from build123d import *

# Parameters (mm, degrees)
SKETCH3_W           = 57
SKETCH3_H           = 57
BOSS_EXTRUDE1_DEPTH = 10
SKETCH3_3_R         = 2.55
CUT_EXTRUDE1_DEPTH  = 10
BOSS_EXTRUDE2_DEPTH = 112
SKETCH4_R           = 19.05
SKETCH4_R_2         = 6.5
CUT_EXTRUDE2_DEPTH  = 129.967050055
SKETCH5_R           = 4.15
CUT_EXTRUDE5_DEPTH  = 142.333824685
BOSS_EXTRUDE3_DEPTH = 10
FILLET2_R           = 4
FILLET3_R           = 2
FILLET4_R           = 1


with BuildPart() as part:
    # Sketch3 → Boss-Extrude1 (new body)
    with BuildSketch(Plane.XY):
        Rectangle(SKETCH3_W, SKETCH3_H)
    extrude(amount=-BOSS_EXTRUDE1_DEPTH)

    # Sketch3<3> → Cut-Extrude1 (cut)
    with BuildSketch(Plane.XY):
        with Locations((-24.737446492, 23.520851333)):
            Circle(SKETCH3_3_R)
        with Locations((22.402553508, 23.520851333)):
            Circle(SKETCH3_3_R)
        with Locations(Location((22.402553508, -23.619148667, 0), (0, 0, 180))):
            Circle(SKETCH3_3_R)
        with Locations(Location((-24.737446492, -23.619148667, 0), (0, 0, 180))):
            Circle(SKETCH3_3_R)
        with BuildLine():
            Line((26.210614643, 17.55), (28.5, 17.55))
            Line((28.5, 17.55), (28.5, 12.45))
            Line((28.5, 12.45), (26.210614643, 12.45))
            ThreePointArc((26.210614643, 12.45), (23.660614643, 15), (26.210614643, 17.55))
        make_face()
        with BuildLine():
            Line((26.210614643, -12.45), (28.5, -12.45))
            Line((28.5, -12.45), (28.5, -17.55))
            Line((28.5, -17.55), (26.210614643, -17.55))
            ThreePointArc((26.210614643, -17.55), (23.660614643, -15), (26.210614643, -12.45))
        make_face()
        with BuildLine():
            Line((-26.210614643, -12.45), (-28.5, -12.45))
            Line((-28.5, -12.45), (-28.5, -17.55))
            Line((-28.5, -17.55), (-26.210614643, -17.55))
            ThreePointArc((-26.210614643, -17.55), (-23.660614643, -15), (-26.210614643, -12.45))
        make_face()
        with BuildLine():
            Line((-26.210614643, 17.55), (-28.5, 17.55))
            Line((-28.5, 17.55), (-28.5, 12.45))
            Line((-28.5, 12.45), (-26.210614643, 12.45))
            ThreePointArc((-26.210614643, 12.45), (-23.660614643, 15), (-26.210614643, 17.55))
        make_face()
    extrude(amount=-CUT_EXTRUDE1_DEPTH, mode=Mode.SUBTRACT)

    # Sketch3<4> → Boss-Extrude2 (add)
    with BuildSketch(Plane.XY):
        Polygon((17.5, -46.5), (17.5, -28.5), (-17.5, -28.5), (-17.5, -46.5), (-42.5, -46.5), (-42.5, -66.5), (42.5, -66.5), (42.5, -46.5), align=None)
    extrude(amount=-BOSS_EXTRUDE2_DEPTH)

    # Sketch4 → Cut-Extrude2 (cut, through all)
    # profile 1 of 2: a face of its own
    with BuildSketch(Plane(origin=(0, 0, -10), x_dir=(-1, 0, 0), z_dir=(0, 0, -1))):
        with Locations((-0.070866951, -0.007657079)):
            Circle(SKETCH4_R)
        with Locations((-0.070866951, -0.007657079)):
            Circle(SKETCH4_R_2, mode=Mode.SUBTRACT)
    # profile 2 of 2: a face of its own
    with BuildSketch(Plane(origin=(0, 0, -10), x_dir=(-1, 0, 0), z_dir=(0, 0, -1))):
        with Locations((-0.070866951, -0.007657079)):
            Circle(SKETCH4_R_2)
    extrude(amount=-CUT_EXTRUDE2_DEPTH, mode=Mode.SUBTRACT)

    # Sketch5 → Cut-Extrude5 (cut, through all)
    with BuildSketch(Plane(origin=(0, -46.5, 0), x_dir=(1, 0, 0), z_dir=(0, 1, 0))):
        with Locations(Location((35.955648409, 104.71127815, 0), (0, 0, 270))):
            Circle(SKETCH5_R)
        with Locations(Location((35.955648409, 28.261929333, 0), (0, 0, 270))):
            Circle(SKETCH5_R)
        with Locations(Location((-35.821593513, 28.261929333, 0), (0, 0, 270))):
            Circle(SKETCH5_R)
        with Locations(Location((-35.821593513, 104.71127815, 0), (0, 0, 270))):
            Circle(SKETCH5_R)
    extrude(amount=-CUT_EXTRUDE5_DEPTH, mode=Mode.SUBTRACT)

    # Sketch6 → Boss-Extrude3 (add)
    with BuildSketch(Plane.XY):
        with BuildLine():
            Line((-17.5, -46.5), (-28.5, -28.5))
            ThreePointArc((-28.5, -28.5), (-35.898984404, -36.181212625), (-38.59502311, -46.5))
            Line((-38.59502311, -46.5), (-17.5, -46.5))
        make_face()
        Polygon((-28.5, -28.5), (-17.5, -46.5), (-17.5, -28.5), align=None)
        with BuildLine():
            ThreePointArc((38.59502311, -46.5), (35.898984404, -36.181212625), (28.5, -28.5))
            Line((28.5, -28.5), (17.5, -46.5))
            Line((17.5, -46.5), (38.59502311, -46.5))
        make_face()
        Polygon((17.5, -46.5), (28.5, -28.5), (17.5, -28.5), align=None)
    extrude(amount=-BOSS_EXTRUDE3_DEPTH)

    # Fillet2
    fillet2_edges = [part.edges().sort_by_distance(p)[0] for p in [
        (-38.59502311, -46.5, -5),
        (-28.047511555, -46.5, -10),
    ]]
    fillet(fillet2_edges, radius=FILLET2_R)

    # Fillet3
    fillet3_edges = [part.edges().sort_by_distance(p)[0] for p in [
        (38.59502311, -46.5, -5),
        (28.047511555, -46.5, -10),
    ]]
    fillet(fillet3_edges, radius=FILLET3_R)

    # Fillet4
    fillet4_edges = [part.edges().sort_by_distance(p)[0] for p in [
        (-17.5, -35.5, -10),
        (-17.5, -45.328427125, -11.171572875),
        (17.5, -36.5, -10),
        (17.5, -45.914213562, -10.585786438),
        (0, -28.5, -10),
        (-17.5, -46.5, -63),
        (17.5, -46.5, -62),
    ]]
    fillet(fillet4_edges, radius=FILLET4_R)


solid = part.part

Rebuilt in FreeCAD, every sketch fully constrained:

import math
import FreeCAD as App
import Part
import Sketcher

V = App.Vector


def edges_at(feature, points):
    """Names of the edges that pass closest to the given points."""
    edges = feature.Shape.Edges
    near = lambda p: min(range(len(edges)), key=lambda i: edges[i].distToShape(Part.Vertex(*p))[0])
    return sorted({f"Edge{near(p) + 1}" for p in points})


def add_polygon(sketch, points):
    """Adds a closed chain of lines whose ends are joined by coincident constraints."""
    first, n = sketch.GeometryCount, len(points)
    for a, b in zip(points, points[1:] + points[:1]):
        sketch.addGeometry(Part.LineSegment(App.Vector(*a, 0), App.Vector(*b, 0)), False)
    for i in range(n):
        sketch.addConstraint(Sketcher.Constraint("Coincident", first + i, 2, first + (i + 1) % n, 1))

doc = App.newDocument("Part")
params = doc.addObject("Spreadsheet::Sheet", "Params")
for row, (alias, value) in enumerate([
    ("sketch1_width", "57 mm"),
    ("pad1_length", "10 mm"),
    ("sketch2_diameter", "5.1 mm"),
    ("pocket1_length", "10 mm"),
    ("sketch3_width", "35 mm"),
    ("sketch3_width2", "25 mm"),
    ("sketch3_height", "18 mm"),
    ("sketch3_height2", "20 mm"),
    ("pad2_length", "112 mm"),
    ("sketch4_diameter", "38.1 mm"),
    ("pocket2_length", "129.96705 mm"),
    ("sketch5_diameter", "8.3 mm"),
    ("sketch6_width", "11 mm"),
    ("sketch6_height", "18 mm"),
    ("pad3_length", "10 mm"),
    ("fillet_radius", "4 mm"),
    ("fillet2_radius", "2 mm"),
    ("fillet3_radius", "1 mm"),
], start=1):
    params.set(f"A{row}", alias)
    params.set(f"B{row}", "=" + value)
    params.setAlias(f"B{row}", alias)

body = doc.addObject("PartDesign::Body", "Body")

# Sketch on XY plane
sketch1 = body.newObject("Sketcher::SketchObject", "Sketch")
sketch1.AttachmentSupport = (doc.getObject("XY_Plane"), [""])
sketch1.MapMode = "FlatFace"
add_polygon(sketch1, [(-28, 28), (-28, -28), (28, -28), (28, 28)])  # lines 0-3
sketch1.addConstraint([
    Sketcher.Constraint("Vertical", 0),
    Sketcher.Constraint("Horizontal", 1),
    Sketcher.Constraint("Vertical", 2),
    Sketcher.Constraint("Horizontal", 3),
    Sketcher.Constraint("Symmetric", 0, 2, 2, 2, -1, 1),
    Sketcher.Constraint("Equal", 3, 0),
    Sketcher.Constraint("DistanceX", 1, 1, 1, 2, 57.0),
])
sketch1.setExpression("Constraints[10]", "Params.sketch1_width")
pad1 = body.newObject("PartDesign::Pad", "Pad")
pad1.Profile = sketch1
pad1.setExpression("Length", "Params.pad1_length")
pad1.Reversed = True

# Sketch on XY plane
sketch2 = body.newObject("Sketcher::SketchObject", "Sketch001")
sketch2.AttachmentSupport = (doc.getObject("XY_Plane"), [""])
sketch2.MapMode = "FlatFace"
sketch2.addGeometry([
    Part.Circle(V(-24.7, 23.5, 0), V(0, 0, 1), 2.5),  # 0
    Part.Circle(V(22.4, 23.5, 0), V(0, 0, 1), 2.5),  # 1
    Part.Circle(V(22.4, -23.6, 0), V(0, 0, 1), 2.5),  # 2
    Part.Circle(V(-24.7, -23.6, 0), V(0, 0, 1), 2.5),  # 3
    Part.LineSegment(V(28.5, 17.6, 0), V(26.2, 17.6, 0)),  # 4
    Part.ArcOfCircle(Part.Circle(V(26.2, 15, 0), V(0, 0, 1), 2.5), math.radians(90), math.radians(270)),  # 5
    Part.LineSegment(V(26.2, 12.4, 0), V(28.5, 12.4, 0)),  # 6
    Part.LineSegment(V(28.5, 12.4, 0), V(28.5, 17.6, 0)),  # 7
    Part.LineSegment(V(28.5, -12.4, 0), V(26.2, -12.4, 0)),  # 8
    Part.ArcOfCircle(Part.Circle(V(26.2, -15, 0), V(0, 0, 1), 2.5), math.radians(90), math.radians(270)),  # 9
    Part.LineSegment(V(26.2, -17.6, 0), V(28.5, -17.6, 0)),  # 10
    Part.LineSegment(V(28.5, -17.6, 0), V(28.5, -12.4, 0)),  # 11
    Part.LineSegment(V(-26.2, -12.4, 0), V(-28.5, -12.4, 0)),  # 12
    Part.LineSegment(V(-28.5, -12.4, 0), V(-28.5, -17.6, 0)),  # 13
    Part.LineSegment(V(-28.5, -17.6, 0), V(-26.2, -17.6, 0)),  # 14
    Part.ArcOfCircle(Part.Circle(V(-26.2, -15, 0), V(0, 0, 1), 2.5), math.radians(-90), math.radians(90)),  # 15
    Part.LineSegment(V(-26.2, 17.6, 0), V(-28.5, 17.6, 0)),  # 16
    Part.LineSegment(V(-28.5, 17.6, 0), V(-28.5, 12.4, 0)),  # 17
    Part.LineSegment(V(-28.5, 12.4, 0), V(-26.2, 12.4, 0)),  # 18
    Part.ArcOfCircle(Part.Circle(V(-26.2, 15, 0), V(0, 0, 1), 2.5), math.radians(-90), math.radians(90)),  # 19
], False)
sketch2.addConstraint([
    Sketcher.Constraint("Tangent", 4, 2, 5, 1),
    Sketcher.Constraint("Tangent", 5, 2, 6, 1),
    Sketcher.Constraint("Coincident", 6, 2, 7, 1),
    Sketcher.Constraint("Coincident", 7, 2, 4, 1),
    Sketcher.Constraint("Tangent", 8, 2, 9, 1),
    Sketcher.Constraint("Tangent", 9, 2, 10, 1),
    Sketcher.Constraint("Coincident", 10, 2, 11, 1),
    Sketcher.Constraint("Coincident", 11, 2, 8, 1),
    Sketcher.Constraint("Coincident", 12, 2, 13, 1),
    Sketcher.Constraint("Coincident", 13, 2, 14, 1),
    Sketcher.Constraint("Tangent", 14, 2, 15, 1),
    Sketcher.Constraint("Tangent", 15, 2, 12, 1),
    Sketcher.Constraint("Coincident", 16, 2, 17, 1),
    Sketcher.Constraint("Coincident", 17, 2, 18, 1),
    Sketcher.Constraint("Tangent", 18, 2, 19, 1),
    Sketcher.Constraint("Tangent", 19, 2, 16, 1),
    Sketcher.Constraint("Horizontal", 4),
    Sketcher.Constraint("Horizontal", 6),
    Sketcher.Constraint("Vertical", 7),
    Sketcher.Constraint("Horizontal", 8),
    Sketcher.Constraint("Horizontal", 10),
    Sketcher.Constraint("Vertical", 11),
    Sketcher.Constraint("Horizontal", 12),
    Sketcher.Constraint("Vertical", 13),
    Sketcher.Constraint("Horizontal", 14),
    Sketcher.Constraint("Horizontal", 16),
    Sketcher.Constraint("Vertical", 17),
    Sketcher.Constraint("Horizontal", 18),
    Sketcher.Constraint("Equal", 0, 1),
    Sketcher.Constraint("Equal", 1, 2),
    Sketcher.Constraint("Equal", 2, 3),
    Sketcher.Constraint("Equal", 3, 5),
    Sketcher.Constraint("Equal", 5, 9),
    Sketcher.Constraint("Equal", 9, 15),
    Sketcher.Constraint("Equal", 15, 19),
    Sketcher.Constraint("Symmetric", 5, 3, 15, 3, -1, 1),
    Sketcher.Constraint("Symmetric", 9, 3, 19, 3, -1, 1),
    Sketcher.Constraint("Symmetric", 9, 3, 15, 3, -2),
    Sketcher.Constraint("Horizontal", 0, 3, 1, 3),
    Sketcher.Constraint("Horizontal", 2, 3, 3, 3),
    Sketcher.Constraint("Vertical", 1, 3, 2, 3),
    Sketcher.Constraint("Vertical", 0, 3, 3, 3),
    Sketcher.Constraint("Vertical", 7, 2, 10, 2),
    Sketcher.Constraint("Vertical", 13, 2, 16, 2),
    Sketcher.Constraint("Equal", 10, 12),
    Sketcher.Constraint("Diameter", 0, 5.1),
    Sketcher.Constraint("DistanceY", -1, 1, 5, 3, 15.0),
    Sketcher.Constraint("DistanceX", -1, 1, 6, 2, 28.5),
    Sketcher.Constraint("DistanceX", 0, 3, 1, 3, 47.14),
    Sketcher.Constraint("DistanceY", 2, 3, 1, 3, 47.14),
    Sketcher.Constraint("DistanceX", 4, 2, 4, 1, 2.289385),
    Sketcher.Constraint("DistanceY", -1, 1, 0, 3, 23.520851),
    Sketcher.Constraint("DistanceX", 1, 3, 5, 3, 3.808061),
])
sketch2.setExpression("Constraints[45]", "Params.sketch2_diameter")
pocket1 = body.newObject("PartDesign::Pocket", "Pocket")
pocket1.Profile = sketch2
pocket1.setExpression("Length", "Params.pocket1_length")

# Sketch on XY plane
sketch3 = body.newObject("Sketcher::SketchObject", "Sketch002")
sketch3.AttachmentSupport = (doc.getObject("XY_Plane"), [""])
sketch3.MapMode = "FlatFace"
add_polygon(sketch3, [(18, -46), (18, -28), (-18, -28), (-18, -46), (-42, -46), (-42, -66), (42, -66), (42, -46)])  # lines 0-7
sketch3.addConstraint([
    Sketcher.Constraint("Vertical", 0),
    Sketcher.Constraint("Horizontal", 1),
    Sketcher.Constraint("Vertical", 2),
    Sketcher.Constraint("Horizontal", 3),
    Sketcher.Constraint("Vertical", 4),
    Sketcher.Constraint("Horizontal", 5),
    Sketcher.Constraint("Vertical", 6),
    Sketcher.Constraint("Horizontal", 7),
    Sketcher.Constraint("Symmetric", 3, 2, 6, 2, -2),
    Sketcher.Constraint("Equal", 3, 7),
    Sketcher.Constraint("DistanceX", 1, 2, 1, 1, 35.0),
    Sketcher.Constraint("DistanceX", 3, 2, 3, 1, 25.0),
    Sketcher.Constraint("DistanceY", 0, 1, 0, 2, 18.0),
    Sketcher.Constraint("DistanceY", 4, 2, 4, 1, 20.0),
    Sketcher.Constraint("DistanceY", 0, 2, -1, 1, 28.5),
])
sketch3.setExpression("Constraints[18]", "Params.sketch3_width")
sketch3.setExpression("Constraints[19]", "Params.sketch3_width2")
sketch3.setExpression("Constraints[20]", "Params.sketch3_height")
sketch3.setExpression("Constraints[21]", "Params.sketch3_height2")
pad2 = body.newObject("PartDesign::Pad", "Pad001")
pad2.Profile = sketch3
pad2.setExpression("Length", "Params.pad2_length")
pad2.Reversed = True

# Sketch on XY plane
sketch4 = body.newObject("Sketcher::SketchObject", "Sketch003")
sketch4.AttachmentSupport = (doc.getObject("XY_Plane"), [""])
sketch4.MapMode = "FlatFace"
sketch4.AttachmentOffset = App.Placement(V(0, 0, -10), App.Rotation())
sketch4.addGeometry(Part.Circle(V(0, 0, 0), V(0, 0, 1), 19), False)
sketch4.addConstraint([
    Sketcher.Constraint("Diameter", 0, 38.1),
    Sketcher.Constraint("DistanceX", -1, 1, 0, 3, 0.070867),
    Sketcher.Constraint("DistanceY", 0, 3, -1, 1, 0.007657),
])
sketch4.setExpression("Constraints[0]", "Params.sketch4_diameter")
pocket2 = body.newObject("PartDesign::Pocket", "Pocket001")
pocket2.Profile = sketch4
pocket2.setExpression("Length", "Params.pocket2_length")
pocket2.Reversed = True

# Sketch on XZ plane
sketch5 = body.newObject("Sketcher::SketchObject", "Sketch004")
sketch5.AttachmentSupport = (doc.getObject("XZ_Plane"), [""])
sketch5.MapMode = "FlatFace"
sketch5.AttachmentOffset = App.Placement(V(0, 0, 46.5), App.Rotation())
sketch5.addGeometry([
    Part.Circle(V(36, -104.7, 0), V(0, 0, 1), 4.2),
    Part.Circle(V(36, -28.3, 0), V(0, 0, 1), 4.2),
    Part.Circle(V(-35.8, -28.3, 0), V(0, 0, 1), 4.2),
    Part.Circle(V(-35.8, -104.7, 0), V(0, 0, 1), 4.2),
], False)
sketch5.addConstraint([
    Sketcher.Constraint("Equal", 0, 1),
    Sketcher.Constraint("Equal", 1, 2),
    Sketcher.Constraint("Equal", 2, 3),
    Sketcher.Constraint("Horizontal", 1, 3, 2, 3),
    Sketcher.Constraint("Horizontal", 0, 3, 3, 3),
    Sketcher.Constraint("Vertical", 0, 3, 1, 3),
    Sketcher.Constraint("Vertical", 2, 3, 3, 3),
    Sketcher.Constraint("Diameter", 0, 8.3),
    Sketcher.Constraint("DistanceX", -1, 1, 0, 3, 35.955648),
    Sketcher.Constraint("DistanceY", 0, 3, -1, 1, 104.711278),
    Sketcher.Constraint("DistanceY", 1, 3, -1, 1, 28.261929),
    Sketcher.Constraint("DistanceX", 2, 3, 1, 3, 71.777242),
])
sketch5.setExpression("Constraints[7]", "Params.sketch5_diameter")
pocket3 = body.newObject("PartDesign::Pocket", "Pocket002")
pocket3.Profile = sketch5
pocket3.Type = "ThroughAll"
pocket3.Reversed = True

# Sketch on XY plane
sketch6 = body.newObject("Sketcher::SketchObject", "Sketch005")
sketch6.AttachmentSupport = (doc.getObject("XY_Plane"), [""])
sketch6.MapMode = "FlatFace"
sketch6.addGeometry([
    Part.ArcOfCircle(Part.Circle(V(-17, -47, 0), V(0, 0, 1), 21), math.radians(121), math.radians(180)),  # 0
    Part.LineSegment(V(-39, -46, 0), V(-18, -46, 0)),  # 1
    Part.LineSegment(V(-18, -46, 0), V(-18, -28, 0)),  # 2
    Part.LineSegment(V(-18, -28, 0), V(-28, -28, 0)),  # 3
    Part.ArcOfCircle(Part.Circle(V(17, -47, 0), V(0, 0, 1), 21), math.radians(0), math.radians(59)),  # 4
    Part.LineSegment(V(28, -28, 0), V(18, -28, 0)),  # 5
    Part.LineSegment(V(18, -28, 0), V(18, -46, 0)),  # 6
    Part.LineSegment(V(18, -46, 0), V(39, -46, 0)),  # 7
], False)
sketch6.addConstraint([
    Sketcher.Constraint("Coincident", 0, 2, 1, 1),
    Sketcher.Constraint("Coincident", 1, 2, 2, 1),
    Sketcher.Constraint("Coincident", 2, 2, 3, 1),
    Sketcher.Constraint("Coincident", 3, 2, 0, 1),
    Sketcher.Constraint("Coincident", 4, 2, 5, 1),
    Sketcher.Constraint("Coincident", 5, 2, 6, 1),
    Sketcher.Constraint("Coincident", 6, 2, 7, 1),
    Sketcher.Constraint("Coincident", 7, 2, 4, 1),
    Sketcher.Constraint("Horizontal", 1),
    Sketcher.Constraint("Vertical", 2),
    Sketcher.Constraint("Horizontal", 3),
    Sketcher.Constraint("Horizontal", 5),
    Sketcher.Constraint("Vertical", 6),
    Sketcher.Constraint("Horizontal", 7),
    Sketcher.Constraint("Coincident", 1, 2, 0, 3),
    Sketcher.Constraint("Coincident", 6, 2, 4, 3),
    Sketcher.Constraint("Equal", 0, 4),
    Sketcher.Constraint("Symmetric", 0, 3, 4, 3, -2),
    Sketcher.Constraint("Horizontal", 3, 2, 4, 2),
    Sketcher.Constraint("DistanceX", 3, 2, 3, 1, 11.0),
    Sketcher.Constraint("DistanceY", 2, 1, 2, 2, 18.0),
    Sketcher.Constraint("DistanceX", 0, 3, 4, 3, 35.0),
    Sketcher.Constraint("DistanceY", 0, 3, -1, 1, 46.5),
])
sketch6.setExpression("Constraints[19]", "Params.sketch6_width")
sketch6.setExpression("Constraints[20]", "Params.sketch6_height")
pad3 = body.newObject("PartDesign::Pad", "Pad002")
pad3.Profile = sketch6
pad3.setExpression("Length", "Params.pad3_length")
pad3.Reversed = True
doc.recompute()

fillet = body.newObject("PartDesign::Fillet", "Fillet")
fillet.Base = (pad3, edges_at(pad3, [(-38.595, -46.5, -5), (-28.048, -46.5, -10)]))
fillet.setExpression("Radius", "Params.fillet_radius")
doc.recompute()

fillet2 = body.newObject("PartDesign::Fillet", "Fillet001")
fillet2.Base = (fillet, edges_at(fillet, [(38.595, -46.5, -5), (28.048, -46.5, -10)]))
fillet2.setExpression("Radius", "Params.fillet2_radius")
doc.recompute()

fillet3 = body.newObject("PartDesign::Fillet", "Fillet002")
fillet3.Base = (fillet2, edges_at(fillet2, [
    (-17.5, -35.5, -10),
    (-17.5, -45.328, -11.172),
    (17.5, -36.5, -10),
    (17.5, -45.914, -10.586),
    (0, -28.5, -10),
    (-17.5, -46.5, -63),
    (17.5, -46.5, -62),
]))
fillet3.setExpression("Radius", "Params.fillet3_radius")

doc.recompute()
